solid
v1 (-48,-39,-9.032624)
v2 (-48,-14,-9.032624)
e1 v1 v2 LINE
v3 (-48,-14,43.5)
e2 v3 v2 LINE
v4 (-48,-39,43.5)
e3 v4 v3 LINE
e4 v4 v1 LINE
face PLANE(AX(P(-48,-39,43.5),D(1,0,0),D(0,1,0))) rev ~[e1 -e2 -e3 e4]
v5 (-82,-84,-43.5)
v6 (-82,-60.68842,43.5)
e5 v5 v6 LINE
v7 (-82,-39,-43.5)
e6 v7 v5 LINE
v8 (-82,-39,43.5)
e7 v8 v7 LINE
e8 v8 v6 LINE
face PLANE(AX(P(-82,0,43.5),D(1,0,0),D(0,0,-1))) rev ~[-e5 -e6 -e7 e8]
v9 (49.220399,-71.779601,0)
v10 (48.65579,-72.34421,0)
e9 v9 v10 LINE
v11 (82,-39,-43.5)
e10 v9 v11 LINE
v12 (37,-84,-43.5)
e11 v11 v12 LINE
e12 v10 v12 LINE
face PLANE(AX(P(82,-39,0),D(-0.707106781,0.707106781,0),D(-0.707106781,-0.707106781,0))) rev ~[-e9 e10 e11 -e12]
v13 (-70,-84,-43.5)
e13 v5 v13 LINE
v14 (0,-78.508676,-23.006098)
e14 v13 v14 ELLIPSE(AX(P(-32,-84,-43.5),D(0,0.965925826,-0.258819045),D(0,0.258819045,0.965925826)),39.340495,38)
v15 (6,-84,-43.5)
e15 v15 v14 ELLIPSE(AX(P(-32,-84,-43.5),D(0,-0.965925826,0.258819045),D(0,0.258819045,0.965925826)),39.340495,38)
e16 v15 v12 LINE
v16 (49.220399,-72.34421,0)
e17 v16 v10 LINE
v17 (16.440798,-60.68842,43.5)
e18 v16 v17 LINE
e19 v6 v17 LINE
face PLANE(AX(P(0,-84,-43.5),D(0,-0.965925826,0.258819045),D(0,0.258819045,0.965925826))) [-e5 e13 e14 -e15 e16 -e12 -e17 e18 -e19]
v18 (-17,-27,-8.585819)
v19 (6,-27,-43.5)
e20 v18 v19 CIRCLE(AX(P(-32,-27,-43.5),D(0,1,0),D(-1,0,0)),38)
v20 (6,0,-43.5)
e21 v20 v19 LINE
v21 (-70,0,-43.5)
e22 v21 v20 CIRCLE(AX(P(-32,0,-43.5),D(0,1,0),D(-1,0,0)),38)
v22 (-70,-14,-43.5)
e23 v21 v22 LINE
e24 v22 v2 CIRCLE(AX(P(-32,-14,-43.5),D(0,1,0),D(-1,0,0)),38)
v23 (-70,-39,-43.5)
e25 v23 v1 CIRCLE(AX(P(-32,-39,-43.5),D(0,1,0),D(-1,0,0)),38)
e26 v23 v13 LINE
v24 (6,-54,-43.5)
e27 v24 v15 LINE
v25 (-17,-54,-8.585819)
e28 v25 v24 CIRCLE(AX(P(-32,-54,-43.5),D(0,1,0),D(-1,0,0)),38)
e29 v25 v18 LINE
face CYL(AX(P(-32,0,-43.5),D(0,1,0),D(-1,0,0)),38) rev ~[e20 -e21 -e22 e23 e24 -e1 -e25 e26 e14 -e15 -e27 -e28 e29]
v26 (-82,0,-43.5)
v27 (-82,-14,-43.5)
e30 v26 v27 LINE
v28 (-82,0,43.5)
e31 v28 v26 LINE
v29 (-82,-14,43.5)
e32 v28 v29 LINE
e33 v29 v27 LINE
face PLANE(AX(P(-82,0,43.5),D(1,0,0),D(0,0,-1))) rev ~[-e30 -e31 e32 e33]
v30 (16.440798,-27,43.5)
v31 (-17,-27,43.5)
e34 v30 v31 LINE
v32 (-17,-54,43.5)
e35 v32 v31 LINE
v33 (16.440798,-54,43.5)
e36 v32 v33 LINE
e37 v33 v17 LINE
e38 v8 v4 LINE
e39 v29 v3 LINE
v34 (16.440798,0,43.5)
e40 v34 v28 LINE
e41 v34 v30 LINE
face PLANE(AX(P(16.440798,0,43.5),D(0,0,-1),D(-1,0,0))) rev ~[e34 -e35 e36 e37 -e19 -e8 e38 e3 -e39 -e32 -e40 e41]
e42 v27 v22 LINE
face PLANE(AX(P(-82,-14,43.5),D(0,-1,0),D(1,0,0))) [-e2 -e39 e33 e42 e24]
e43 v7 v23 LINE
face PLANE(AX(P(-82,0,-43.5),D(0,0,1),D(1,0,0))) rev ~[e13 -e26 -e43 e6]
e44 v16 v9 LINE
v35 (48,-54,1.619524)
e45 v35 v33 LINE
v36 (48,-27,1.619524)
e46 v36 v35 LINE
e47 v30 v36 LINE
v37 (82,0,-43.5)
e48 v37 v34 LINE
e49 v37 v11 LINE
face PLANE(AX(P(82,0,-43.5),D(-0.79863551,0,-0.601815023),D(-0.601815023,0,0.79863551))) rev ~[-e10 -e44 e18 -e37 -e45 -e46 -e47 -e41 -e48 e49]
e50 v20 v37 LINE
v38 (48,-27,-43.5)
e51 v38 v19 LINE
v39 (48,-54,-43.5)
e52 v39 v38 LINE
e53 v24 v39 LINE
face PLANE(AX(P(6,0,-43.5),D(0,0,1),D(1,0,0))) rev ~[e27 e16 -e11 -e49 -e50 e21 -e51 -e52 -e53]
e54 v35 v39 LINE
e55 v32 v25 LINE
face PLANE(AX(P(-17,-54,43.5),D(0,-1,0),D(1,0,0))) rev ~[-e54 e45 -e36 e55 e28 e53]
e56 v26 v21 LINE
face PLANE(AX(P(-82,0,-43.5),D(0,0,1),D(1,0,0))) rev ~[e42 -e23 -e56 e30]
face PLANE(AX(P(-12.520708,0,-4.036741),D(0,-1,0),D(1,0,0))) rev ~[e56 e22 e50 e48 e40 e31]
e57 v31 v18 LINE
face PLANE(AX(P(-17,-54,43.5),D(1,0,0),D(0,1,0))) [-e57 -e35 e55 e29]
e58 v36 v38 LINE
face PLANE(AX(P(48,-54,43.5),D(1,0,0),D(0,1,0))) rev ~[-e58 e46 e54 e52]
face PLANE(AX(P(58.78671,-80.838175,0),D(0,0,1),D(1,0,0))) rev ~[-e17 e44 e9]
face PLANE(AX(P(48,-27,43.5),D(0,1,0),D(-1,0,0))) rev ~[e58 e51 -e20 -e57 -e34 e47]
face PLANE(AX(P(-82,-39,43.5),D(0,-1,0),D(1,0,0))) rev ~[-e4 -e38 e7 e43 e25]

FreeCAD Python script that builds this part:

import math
import FreeCAD as App
import Part
import Sketcher
Q = App.Units.Quantity


def add_polygon(sketch, points):
    """Adds a closed chain of lines whose ends are joined by coincident constraints."""
    first, n = sketch.GeometryCount, len(points)
    for a, b in zip(points, points[1:] + points[:1]):
        sketch.addGeometry(Part.LineSegment(App.Vector(*a, 0), App.Vector(*b, 0)), False)
    for i in range(n):
        sketch.addConstraint(Sketcher.Constraint("Coincident", first + i, 2, first + (i + 1) % n, 1))

doc = App.newDocument("Part")
params = doc.addObject("Spreadsheet::Sheet", "Params")
for row, (alias, value) in enumerate([
    ("sketch1_radius", "38 mm"),
    ("sketch1_width", "12 mm"),
    ("sketch1_width2", "76 mm"),
    ("sketch1_height", "87 mm"),
    ("pad1_length", "84 mm"),
    ("sketch2_width", "65 mm"),
    ("sketch2_width2", "34 mm"),
    ("sketch2_height", "27 mm"),
    ("sketch2_height2", "25 mm"),
    ("pocket1_length", "187.4 mm"),
    ("sketch3_height", "87 mm"),
    ("sketch4_width", "45 mm"),
    ("pocket3_length", "75.8 mm"),
], start=1):
    params.set(f"A{row}", alias)
    params.set(f"B{row}", "=" + value)
    params.setAlias(f"B{row}", alias)

body = doc.addObject("PartDesign::Body", "Body")

sketch1 = doc.addObject("Sketcher::SketchObject", "Sketch")
body.addObject(sketch1)
sketch1.AttachmentSupport = (doc.XZ_Plane, [""])
sketch1.MapMode = "FlatFace"
sketch1.addGeometry([
    Part.LineSegment(App.Vector(82, -43.5, 0), App.Vector(16.440798, 43.5, 0)),
    Part.LineSegment(App.Vector(16.440798, 43.5, 0), App.Vector(-82, 43.5, 0)),
    Part.LineSegment(App.Vector(-82, 43.5, 0), App.Vector(-82, -43.5, 0)),
    Part.LineSegment(App.Vector(-82, -43.5, 0), App.Vector(-70, -43.5, 0)),
    Part.ArcOfCircle(Part.Circle(App.Vector(-32, -43.5, 0), App.Vector(0, 0, 1), 38), math.radians(0), math.radians(180)),
    Part.LineSegment(App.Vector(6, -43.5, 0), App.Vector(82, -43.5, 0)),
], False)
sketch1.addConstraint([
    Sketcher.Constraint("Coincident", 0, 2, 1, 1),
    Sketcher.Constraint("Coincident", 1, 2, 2, 1),
    Sketcher.Constraint("Coincident", 2, 2, 3, 1),
    Sketcher.Constraint("Coincident", 3, 2, 4, 2),
    Sketcher.Constraint("Coincident", 4, 1, 5, 1),
    Sketcher.Constraint("Coincident", 5, 2, 0, 1),
    Sketcher.Constraint("Horizontal", 1),
    Sketcher.Constraint("Vertical", 2),
    Sketcher.Constraint("Horizontal", 3),
    Sketcher.Constraint("Horizontal", 5),
    Sketcher.Constraint("Symmetric", 1, 2, 5, 2, -1, 1),
    Sketcher.Constraint("Horizontal", 4, 3, 2, 2),
    Sketcher.Constraint("Horizontal", 3, 2, 4, 1),
    Sketcher.Constraint("Radius", 4, Q("38 mm")),
    Sketcher.Constraint("DistanceX", 3, 1, 3, 2, Q("12 mm")),
    Sketcher.Constraint("DistanceX", 5, 1, 5, 2, Q("76 mm")),
    Sketcher.Constraint("DistanceY", 2, 2, 2, 1, Q("87 mm")),
    Sketcher.Constraint("Angle", 0, Q("127 deg")),
])
sketch1.setExpression("Constraints[13]", "Params.sketch1_radius")
sketch1.setExpression("Constraints[14]", "Params.sketch1_width")
sketch1.setExpression("Constraints[15]", "Params.sketch1_width2")
sketch1.setExpression("Constraints[16]", "Params.sketch1_height")
pad1 = doc.addObject("PartDesign::Pad", "Pad")
body.addObject(pad1)
pad1.Profile = sketch1
pad1.setExpression("Length", "Params.pad1_length")

sketch2 = doc.addObject("Sketcher::SketchObject", "Sketch001")
body.addObject(sketch2)
sketch2.AttachmentSupport = (doc.XY_Plane, [""])
sketch2.MapMode = "FlatFace"
sketch2.AttachmentOffset = App.Placement(App.Vector(0, 0, 43.5), App.Rotation())
add_polygon(sketch2, [(48, -54), (48, -27), (-17, -27), (-17, -54)])
add_polygon(sketch2, [(-82, -14), (-82, -39), (-48, -39), (-48, -14)])
sketch2.addConstraint([
    Sketcher.Constraint("Vertical", 0),
    Sketcher.Constraint("Horizontal", 1),
    Sketcher.Constraint("Vertical", 2),
    Sketcher.Constraint("Horizontal", 3),
    Sketcher.Constraint("Vertical", 4),
    Sketcher.Constraint("Horizontal", 5),
    Sketcher.Constraint("Vertical", 6),
    Sketcher.Constraint("Horizontal", 7),
    Sketcher.Constraint("DistanceX", 1, 2, 1, 1, Q("65 mm")),
    Sketcher.Constraint("DistanceX", 5, 1, 5, 2, Q("34 mm")),
    Sketcher.Constraint("DistanceY", 0, 1, 0, 2, Q("27 mm")),
    Sketcher.Constraint("DistanceY", 4, 2, 4, 1, Q("25 mm")),
    Sketcher.Constraint("DistanceX", -1, 1, 0, 2, Q("48 mm")),
    Sketcher.Constraint("DistanceY", 0, 2, -1, 1, Q("27 mm")),
    Sketcher.Constraint("DistanceX", 4, 2, -1, 1, Q("82 mm")),
    Sketcher.Constraint("DistanceY", 4, 2, -1, 1, Q("39 mm")),
])
sketch2.setExpression("Constraints[16]", "Params.sketch2_width")
sketch2.setExpression("Constraints[17]", "Params.sketch2_width2")
sketch2.setExpression("Constraints[18]", "Params.sketch2_height")
sketch2.setExpression("Constraints[19]", "Params.sketch2_height2")
pocket1 = doc.addObject("PartDesign::Pocket", "Pocket")
body.addObject(pocket1)
pocket1.Profile = sketch2
pocket1.setExpression("Length", "Params.pocket1_length")

sketch3 = doc.addObject("Sketcher::SketchObject", "Sketch002")
body.addObject(sketch3)
sketch3.AttachmentSupport = (doc.YZ_Plane, [""])
sketch3.MapMode = "FlatFace"
add_polygon(sketch3, [(-84, -43.5), (-60.68842, 43.5), (-84, 43.5)])
sketch3.addConstraint([
    Sketcher.Constraint("Horizontal", 1),
    Sketcher.Constraint("Vertical", 2),
    Sketcher.Constraint("DistanceY", 2, 2, 2, 1, Q("87 mm")),
    Sketcher.Constraint("Angle", 0, Q("75 deg")),
    Sketcher.Constraint("DistanceX", 1, 2, -1, 1, Q("84 mm")),
    Sketcher.Constraint("DistanceY", -1, 1, 0, 2, Q("43.5 mm")),
])
sketch3.setExpression("Constraints[5]", "Params.sketch3_height")
pocket2 = doc.addObject("PartDesign::Pocket", "Pocket001")
body.addObject(pocket2)
pocket2.Profile = sketch3
pocket2.Type = "ThroughAll"
pocket2.Midplane = True

sketch4 = doc.addObject("Sketcher::SketchObject", "Sketch003")
body.addObject(sketch4)
sketch4.AttachmentSupport = (doc.XY_Plane, [""])
sketch4.MapMode = "FlatFace"
add_polygon(sketch4, [(37, -84), (82, -84), (82, -39)])
sketch4.addConstraint([
    Sketcher.Constraint("Horizontal", 0),
    Sketcher.Constraint("Vertical", 1),
    Sketcher.Constraint("Equal", 0, 1),
    Sketcher.Constraint("DistanceX", 0, 1, 0, 2, Q("45 mm")),
    Sketcher.Constraint("DistanceX", -1, 1, 0, 2, Q("82 mm")),
    Sketcher.Constraint("DistanceY", 0, 2, -1, 1, Q("84 mm")),
])
sketch4.setExpression("Constraints[6]", "Params.sketch4_width")
pocket3 = doc.addObject("PartDesign::Pocket", "Pocket002")
body.addObject(pocket3)
pocket3.Profile = sketch4
pocket3.setExpression("Length", "Params.pocket3_length")

doc.recompute()
